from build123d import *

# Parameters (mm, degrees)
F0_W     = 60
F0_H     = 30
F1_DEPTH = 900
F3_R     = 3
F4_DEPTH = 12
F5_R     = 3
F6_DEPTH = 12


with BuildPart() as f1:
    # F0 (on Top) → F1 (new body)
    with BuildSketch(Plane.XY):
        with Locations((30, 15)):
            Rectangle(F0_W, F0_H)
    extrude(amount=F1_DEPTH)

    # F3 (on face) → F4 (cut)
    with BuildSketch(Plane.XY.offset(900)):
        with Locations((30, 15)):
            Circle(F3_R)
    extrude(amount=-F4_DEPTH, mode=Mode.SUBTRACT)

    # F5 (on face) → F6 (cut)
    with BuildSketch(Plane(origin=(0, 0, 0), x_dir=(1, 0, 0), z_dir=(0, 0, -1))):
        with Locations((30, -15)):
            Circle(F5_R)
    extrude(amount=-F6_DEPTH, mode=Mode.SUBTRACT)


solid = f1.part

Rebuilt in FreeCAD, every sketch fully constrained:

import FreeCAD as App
import Part
import Sketcher

doc = App.newDocument("Part")
body = doc.addObject("PartDesign::Body", "Body")

# Sketch on XY plane
sketch1 = body.newObject("Sketcher::SketchObject", "Sketch")
sketch1.AttachmentSupport = (doc.getObject("XY_Plane"), [""])
sketch1.MapMode = "FlatFace"
sketch1.addGeometry([
    Part.LineSegment(App.Vector(0, 30, 0), App.Vector(0, 0, 0)),
    Part.LineSegment(App.Vector(0, 0, 0), App.Vector(60, 0, 0)),
    Part.LineSegment(App.Vector(60, 0, 0), App.Vector(60, 30, 0)),
    Part.LineSegment(App.Vector(60, 30, 0), App.Vector(0, 30, 0)),
], False)
sketch1.addConstraint([
    Sketcher.Constraint("Coincident", 0, 2, 1, 1),
    Sketcher.Constraint("Coincident", 1, 2, 2, 1),
    Sketcher.Constraint("Coincident", 2, 2, 3, 1),
    Sketcher.Constraint("Coincident", 3, 2, 0, 1),
    Sketcher.Constraint("Vertical", 0),
    Sketcher.Constraint("Horizontal", 1),
    Sketcher.Constraint("Vertical", 2),
    Sketcher.Constraint("Horizontal", 3),
    Sketcher.Constraint("Coincident", 0, 2, -1, 1),
    Sketcher.Constraint("DistanceX", 1, 1, 1, 2, 60.0),
    Sketcher.Constraint("DistanceY", 0, 2, 0, 1, 30.0),
])
pad1 = body.newObject("PartDesign::Pad", "Pad")
pad1.Profile = sketch1
pad1.Length = 900

# Sketch on XY plane
sketch2 = body.newObject("Sketcher::SketchObject", "Sketch001")
sketch2.AttachmentSupport = (doc.getObject("XY_Plane"), [""])
sketch2.MapMode = "FlatFace"
sketch2.AttachmentOffset = App.Placement(App.Vector(0, 0, 900), App.Rotation())
sketch2.addGeometry(Part.Circle(App.Vector(30, 15, 0), App.Vector(0, 0, 1), 3), False)
sketch2.addConstraint([
    Sketcher.Constraint("Diameter", 0, 6.0),
    Sketcher.Constraint("DistanceX", -1, 1, 0, 3, 30.0),
    Sketcher.Constraint("DistanceY", -1, 1, 0, 3, 15.0),
])
pocket1 = body.newObject("PartDesign::Pocket", "Pocket")
pocket1.Profile = sketch2
pocket1.Length = 12

# Sketch on XY plane
sketch3 = body.newObject("Sketcher::SketchObject", "Sketch002")
sketch3.AttachmentSupport = (doc.getObject("XY_Plane"), [""])
sketch3.MapMode = "FlatFace"
sketch3.addGeometry(Part.Circle(App.Vector(30, 15, 0), App.Vector(0, 0, 1), 3), False)
sketch3.addConstraint([
    Sketcher.Constraint("Diameter", 0, 6.0),
    Sketcher.Constraint("DistanceX", -1, 1, 0, 3, 30.0),
    Sketcher.Constraint("DistanceY", -1, 1, 0, 3, 15.0),
])
pocket2 = body.newObject("PartDesign::Pocket", "Pocket001")
pocket2.Profile = sketch3
pocket2.Length = 12
pocket2.Reversed = True

doc.recompute()
